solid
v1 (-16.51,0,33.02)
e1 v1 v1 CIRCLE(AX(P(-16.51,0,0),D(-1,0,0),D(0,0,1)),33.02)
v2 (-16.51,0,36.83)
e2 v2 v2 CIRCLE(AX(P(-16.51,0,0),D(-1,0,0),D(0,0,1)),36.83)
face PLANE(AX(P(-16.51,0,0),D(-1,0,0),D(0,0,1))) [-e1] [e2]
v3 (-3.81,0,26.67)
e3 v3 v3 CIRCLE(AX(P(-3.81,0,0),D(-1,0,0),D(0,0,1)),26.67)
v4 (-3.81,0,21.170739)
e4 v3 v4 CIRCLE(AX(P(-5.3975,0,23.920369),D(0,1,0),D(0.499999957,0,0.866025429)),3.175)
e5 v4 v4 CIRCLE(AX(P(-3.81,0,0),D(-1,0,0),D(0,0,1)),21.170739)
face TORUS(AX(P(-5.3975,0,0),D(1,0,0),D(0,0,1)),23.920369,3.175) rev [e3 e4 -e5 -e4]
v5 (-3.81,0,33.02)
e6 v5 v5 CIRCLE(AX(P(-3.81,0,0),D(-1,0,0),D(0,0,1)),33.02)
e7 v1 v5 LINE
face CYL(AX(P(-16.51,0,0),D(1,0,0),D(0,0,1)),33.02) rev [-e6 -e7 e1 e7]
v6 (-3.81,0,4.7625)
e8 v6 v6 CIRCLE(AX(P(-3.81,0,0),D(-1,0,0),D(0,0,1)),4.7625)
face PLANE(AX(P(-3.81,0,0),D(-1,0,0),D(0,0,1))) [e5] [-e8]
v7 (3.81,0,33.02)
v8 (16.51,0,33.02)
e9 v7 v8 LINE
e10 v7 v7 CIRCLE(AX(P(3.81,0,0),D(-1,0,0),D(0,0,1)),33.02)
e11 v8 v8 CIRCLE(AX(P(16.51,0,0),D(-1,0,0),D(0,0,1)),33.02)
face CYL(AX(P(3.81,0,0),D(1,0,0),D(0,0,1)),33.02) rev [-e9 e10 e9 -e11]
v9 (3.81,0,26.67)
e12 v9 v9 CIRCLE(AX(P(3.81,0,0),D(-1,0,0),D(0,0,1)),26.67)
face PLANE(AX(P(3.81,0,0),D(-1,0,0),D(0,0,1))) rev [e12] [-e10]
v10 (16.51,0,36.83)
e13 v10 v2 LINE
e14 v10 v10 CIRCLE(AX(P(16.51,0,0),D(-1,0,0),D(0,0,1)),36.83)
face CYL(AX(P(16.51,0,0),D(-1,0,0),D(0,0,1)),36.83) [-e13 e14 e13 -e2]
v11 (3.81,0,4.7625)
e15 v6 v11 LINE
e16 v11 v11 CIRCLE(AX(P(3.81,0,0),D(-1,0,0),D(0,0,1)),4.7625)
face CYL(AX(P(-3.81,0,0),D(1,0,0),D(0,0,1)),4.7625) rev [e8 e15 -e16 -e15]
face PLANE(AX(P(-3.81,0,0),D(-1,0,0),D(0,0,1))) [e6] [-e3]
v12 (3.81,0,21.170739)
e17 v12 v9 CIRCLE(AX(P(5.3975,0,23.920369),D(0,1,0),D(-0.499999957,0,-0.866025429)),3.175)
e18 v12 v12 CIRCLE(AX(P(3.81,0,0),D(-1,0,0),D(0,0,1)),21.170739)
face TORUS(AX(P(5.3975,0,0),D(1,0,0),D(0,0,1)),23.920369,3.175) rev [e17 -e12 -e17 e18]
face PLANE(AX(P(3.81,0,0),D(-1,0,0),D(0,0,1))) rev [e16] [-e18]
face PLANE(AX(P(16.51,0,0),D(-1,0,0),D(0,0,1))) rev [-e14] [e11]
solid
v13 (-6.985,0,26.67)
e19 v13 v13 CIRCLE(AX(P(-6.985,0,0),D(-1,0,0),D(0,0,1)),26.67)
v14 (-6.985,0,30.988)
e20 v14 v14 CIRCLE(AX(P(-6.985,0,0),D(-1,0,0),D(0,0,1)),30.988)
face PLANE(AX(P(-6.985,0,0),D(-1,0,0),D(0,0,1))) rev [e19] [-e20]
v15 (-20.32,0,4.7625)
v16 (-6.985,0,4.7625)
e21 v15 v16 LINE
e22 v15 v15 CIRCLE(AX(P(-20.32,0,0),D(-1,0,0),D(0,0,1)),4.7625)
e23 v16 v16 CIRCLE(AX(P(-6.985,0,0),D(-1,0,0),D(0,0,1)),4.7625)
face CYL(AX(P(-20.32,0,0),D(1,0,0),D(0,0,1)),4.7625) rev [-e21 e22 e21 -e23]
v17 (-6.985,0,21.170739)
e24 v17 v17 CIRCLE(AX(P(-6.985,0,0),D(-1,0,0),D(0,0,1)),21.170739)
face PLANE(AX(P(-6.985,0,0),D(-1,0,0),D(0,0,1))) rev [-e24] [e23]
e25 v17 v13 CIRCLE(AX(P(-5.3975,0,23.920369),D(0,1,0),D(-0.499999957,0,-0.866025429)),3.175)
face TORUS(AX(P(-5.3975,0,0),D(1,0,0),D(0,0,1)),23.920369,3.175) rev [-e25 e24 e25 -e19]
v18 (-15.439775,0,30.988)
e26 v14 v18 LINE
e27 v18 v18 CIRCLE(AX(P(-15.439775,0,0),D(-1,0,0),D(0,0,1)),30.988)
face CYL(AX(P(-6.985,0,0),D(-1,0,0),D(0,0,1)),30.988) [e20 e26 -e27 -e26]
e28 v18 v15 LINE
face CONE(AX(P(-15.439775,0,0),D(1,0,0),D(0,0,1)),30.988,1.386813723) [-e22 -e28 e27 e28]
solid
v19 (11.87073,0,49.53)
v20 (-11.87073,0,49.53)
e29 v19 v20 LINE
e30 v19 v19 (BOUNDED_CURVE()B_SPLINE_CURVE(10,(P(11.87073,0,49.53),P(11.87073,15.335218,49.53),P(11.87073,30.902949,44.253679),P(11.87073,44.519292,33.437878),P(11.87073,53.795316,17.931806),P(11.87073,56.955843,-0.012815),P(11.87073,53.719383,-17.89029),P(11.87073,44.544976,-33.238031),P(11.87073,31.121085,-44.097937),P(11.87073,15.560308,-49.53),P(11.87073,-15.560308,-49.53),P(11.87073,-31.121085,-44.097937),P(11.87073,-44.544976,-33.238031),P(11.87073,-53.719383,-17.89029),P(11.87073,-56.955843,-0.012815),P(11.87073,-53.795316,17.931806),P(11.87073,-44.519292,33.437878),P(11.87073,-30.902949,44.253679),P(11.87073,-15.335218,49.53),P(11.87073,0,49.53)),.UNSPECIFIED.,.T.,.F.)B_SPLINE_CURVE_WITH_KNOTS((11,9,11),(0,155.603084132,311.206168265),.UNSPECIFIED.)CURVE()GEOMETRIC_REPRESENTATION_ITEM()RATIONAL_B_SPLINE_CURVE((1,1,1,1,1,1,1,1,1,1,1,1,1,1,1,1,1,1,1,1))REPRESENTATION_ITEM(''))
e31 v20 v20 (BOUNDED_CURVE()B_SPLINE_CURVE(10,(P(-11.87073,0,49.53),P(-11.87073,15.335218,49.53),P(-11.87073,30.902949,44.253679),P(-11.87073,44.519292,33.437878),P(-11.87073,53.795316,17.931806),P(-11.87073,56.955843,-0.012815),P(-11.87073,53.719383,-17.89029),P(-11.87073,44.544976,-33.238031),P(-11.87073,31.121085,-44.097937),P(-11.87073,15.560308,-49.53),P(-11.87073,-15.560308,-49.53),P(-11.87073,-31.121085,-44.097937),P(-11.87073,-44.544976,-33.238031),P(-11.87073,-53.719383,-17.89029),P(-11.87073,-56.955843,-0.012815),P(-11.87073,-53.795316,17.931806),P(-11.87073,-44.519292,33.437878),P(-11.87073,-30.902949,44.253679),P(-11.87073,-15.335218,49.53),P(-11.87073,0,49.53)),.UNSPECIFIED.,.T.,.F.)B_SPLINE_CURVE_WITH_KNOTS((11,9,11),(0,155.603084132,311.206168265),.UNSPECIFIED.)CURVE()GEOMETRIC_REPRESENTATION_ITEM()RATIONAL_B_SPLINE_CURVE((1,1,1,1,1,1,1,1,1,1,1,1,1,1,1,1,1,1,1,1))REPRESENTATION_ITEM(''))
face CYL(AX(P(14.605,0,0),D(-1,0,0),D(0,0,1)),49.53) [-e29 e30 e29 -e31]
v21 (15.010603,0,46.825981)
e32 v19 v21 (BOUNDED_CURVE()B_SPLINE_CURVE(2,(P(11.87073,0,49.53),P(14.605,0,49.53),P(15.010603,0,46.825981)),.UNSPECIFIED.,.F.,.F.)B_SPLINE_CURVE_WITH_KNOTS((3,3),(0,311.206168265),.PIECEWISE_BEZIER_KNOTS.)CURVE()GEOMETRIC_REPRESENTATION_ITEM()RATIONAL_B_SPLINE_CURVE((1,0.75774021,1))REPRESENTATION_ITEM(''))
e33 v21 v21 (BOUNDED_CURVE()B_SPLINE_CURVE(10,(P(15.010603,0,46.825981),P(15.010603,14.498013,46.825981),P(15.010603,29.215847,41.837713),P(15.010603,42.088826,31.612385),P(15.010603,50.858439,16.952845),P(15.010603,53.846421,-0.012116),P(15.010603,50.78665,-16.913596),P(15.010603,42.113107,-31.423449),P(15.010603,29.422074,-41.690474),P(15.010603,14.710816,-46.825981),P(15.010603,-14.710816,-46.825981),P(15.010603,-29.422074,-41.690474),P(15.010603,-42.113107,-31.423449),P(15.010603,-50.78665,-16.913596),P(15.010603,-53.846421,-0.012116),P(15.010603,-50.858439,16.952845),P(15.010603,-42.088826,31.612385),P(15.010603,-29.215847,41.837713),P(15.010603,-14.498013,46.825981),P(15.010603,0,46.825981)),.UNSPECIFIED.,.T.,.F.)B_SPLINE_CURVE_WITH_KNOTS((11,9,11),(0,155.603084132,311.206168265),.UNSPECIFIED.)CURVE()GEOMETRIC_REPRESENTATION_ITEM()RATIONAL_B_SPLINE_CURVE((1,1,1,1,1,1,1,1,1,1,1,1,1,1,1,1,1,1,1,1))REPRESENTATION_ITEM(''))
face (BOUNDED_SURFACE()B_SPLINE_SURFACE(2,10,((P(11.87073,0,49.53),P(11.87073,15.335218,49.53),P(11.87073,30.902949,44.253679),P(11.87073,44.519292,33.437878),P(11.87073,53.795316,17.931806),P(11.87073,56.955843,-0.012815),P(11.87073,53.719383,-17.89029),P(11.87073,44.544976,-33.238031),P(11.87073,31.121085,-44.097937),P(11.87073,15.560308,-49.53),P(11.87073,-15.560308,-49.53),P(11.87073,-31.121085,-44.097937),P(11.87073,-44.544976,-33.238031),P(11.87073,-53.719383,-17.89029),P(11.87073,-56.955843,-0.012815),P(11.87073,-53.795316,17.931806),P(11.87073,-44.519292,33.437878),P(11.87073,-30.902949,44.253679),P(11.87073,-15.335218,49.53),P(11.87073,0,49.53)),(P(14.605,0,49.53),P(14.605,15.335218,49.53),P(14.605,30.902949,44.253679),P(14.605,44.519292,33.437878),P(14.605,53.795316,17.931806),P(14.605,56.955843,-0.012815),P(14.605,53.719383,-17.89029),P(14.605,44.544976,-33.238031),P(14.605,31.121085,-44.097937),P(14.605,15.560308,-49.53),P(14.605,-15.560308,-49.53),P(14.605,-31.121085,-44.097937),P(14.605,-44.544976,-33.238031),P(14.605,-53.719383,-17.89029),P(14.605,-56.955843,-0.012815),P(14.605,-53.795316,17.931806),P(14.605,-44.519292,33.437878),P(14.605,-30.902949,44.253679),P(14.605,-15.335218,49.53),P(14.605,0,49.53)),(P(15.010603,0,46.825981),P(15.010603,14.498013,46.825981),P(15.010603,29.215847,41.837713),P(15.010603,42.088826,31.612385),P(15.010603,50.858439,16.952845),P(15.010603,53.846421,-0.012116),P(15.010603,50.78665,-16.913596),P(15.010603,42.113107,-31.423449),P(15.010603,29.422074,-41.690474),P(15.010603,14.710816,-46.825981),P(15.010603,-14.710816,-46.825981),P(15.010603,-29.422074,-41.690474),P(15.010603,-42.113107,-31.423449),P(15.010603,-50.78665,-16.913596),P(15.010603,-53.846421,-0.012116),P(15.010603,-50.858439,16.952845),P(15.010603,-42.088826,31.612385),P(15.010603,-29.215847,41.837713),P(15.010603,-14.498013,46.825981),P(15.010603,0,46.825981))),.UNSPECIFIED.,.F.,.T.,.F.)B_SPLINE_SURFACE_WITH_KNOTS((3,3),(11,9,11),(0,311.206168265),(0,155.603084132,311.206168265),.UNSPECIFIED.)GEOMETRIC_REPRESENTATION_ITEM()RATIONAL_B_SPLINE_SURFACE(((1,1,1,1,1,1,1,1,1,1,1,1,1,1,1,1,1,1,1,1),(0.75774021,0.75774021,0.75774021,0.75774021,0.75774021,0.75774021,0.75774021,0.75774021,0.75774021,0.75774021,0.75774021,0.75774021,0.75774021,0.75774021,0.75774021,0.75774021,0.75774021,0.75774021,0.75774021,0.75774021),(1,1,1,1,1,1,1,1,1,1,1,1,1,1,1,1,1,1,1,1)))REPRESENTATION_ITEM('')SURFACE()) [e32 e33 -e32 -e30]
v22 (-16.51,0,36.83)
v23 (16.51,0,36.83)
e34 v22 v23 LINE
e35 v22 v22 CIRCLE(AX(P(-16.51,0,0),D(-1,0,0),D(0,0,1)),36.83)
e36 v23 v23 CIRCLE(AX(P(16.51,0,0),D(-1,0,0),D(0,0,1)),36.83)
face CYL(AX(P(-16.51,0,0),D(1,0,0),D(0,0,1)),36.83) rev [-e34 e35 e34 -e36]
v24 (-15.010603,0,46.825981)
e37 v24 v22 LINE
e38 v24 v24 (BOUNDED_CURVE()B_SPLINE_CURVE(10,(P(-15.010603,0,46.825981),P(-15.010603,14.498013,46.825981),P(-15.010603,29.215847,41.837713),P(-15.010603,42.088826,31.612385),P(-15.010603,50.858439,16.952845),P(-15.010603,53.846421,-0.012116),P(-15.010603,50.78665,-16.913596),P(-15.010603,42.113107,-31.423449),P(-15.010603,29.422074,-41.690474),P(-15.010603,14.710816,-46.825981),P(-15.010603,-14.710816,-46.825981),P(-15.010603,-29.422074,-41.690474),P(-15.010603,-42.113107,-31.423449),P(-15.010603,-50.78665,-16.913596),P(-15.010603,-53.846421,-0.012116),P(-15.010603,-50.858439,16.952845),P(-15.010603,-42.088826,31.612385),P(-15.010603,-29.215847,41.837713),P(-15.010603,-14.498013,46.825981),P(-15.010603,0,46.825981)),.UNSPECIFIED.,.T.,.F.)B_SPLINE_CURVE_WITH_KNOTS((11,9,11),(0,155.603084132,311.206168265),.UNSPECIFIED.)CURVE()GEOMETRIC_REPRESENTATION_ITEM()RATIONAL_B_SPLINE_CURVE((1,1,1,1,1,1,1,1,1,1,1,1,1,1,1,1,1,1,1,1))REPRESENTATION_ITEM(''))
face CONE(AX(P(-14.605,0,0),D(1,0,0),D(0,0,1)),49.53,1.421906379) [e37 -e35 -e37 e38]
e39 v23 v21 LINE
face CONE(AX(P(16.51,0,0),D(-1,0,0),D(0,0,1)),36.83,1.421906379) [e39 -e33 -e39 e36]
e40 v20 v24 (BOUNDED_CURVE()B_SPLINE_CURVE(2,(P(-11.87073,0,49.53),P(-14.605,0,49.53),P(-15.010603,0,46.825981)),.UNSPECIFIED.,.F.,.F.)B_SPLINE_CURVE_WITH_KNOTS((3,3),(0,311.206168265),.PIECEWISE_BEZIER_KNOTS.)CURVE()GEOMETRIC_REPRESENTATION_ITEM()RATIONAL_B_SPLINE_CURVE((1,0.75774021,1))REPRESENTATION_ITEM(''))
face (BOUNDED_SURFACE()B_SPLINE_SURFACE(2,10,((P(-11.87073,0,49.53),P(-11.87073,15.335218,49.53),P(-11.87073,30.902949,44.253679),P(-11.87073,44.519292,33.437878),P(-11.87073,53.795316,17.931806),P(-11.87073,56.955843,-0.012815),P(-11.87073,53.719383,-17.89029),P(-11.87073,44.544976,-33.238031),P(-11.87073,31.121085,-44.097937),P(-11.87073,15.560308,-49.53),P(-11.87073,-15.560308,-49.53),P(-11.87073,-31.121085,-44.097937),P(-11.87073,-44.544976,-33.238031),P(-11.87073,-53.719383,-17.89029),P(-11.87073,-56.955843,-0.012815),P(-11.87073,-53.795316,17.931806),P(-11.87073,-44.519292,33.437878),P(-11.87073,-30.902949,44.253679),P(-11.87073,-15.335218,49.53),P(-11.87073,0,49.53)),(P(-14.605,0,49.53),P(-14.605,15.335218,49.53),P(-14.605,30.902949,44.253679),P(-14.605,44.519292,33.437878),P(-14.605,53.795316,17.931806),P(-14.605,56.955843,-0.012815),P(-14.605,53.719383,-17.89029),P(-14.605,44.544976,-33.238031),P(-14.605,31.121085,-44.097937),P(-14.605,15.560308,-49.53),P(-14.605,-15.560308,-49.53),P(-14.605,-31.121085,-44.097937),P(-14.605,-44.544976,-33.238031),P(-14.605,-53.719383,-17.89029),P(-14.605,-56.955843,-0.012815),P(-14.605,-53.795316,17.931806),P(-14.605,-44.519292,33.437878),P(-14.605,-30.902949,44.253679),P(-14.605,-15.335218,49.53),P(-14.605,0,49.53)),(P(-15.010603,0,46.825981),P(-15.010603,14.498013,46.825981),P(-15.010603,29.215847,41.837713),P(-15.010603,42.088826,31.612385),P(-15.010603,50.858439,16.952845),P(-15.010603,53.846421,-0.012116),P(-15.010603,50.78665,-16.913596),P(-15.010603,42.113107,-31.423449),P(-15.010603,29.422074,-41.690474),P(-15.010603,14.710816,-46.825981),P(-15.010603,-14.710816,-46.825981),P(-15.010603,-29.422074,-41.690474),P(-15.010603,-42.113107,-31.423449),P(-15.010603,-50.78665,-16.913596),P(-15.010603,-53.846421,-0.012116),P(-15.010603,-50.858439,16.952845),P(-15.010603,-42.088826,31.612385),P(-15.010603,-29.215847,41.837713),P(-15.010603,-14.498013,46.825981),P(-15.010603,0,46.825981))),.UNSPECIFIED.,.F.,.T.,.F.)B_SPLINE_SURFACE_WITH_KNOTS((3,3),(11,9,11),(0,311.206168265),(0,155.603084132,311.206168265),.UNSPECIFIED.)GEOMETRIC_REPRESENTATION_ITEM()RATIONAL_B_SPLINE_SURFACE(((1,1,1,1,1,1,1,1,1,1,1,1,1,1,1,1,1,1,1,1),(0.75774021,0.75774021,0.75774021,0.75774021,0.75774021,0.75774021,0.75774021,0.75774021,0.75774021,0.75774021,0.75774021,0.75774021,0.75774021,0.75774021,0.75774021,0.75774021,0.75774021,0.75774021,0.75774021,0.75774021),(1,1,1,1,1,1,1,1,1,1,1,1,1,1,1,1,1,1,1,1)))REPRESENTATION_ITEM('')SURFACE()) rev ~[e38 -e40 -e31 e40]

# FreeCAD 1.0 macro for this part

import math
import FreeCAD as App
import Part
import Sketcher

V = App.Vector
Q = App.Units.Quantity


def edges_at(feature, points):
    """Names of the edges that pass closest to the given points."""
    edges = feature.Shape.Edges
    near = lambda p: min(range(len(edges)), key=lambda i: edges[i].distToShape(Part.Vertex(*p))[0])
    return sorted({f"Edge{near(p) + 1}" for p in points})

doc = App.newDocument("Part")
params = doc.addObject("Spreadsheet::Sheet", "Params")
for row, (alias, value) in enumerate([
    ("sketch1_width", "1.3 in"),
    ("sketch1_width2", "1.15 in"),
    ("revolution_angle", "360 deg"),
    ("fillet_radius", "0.125 in"),
    ("sketch2_width", "1.3 in"),
    ("sketch2_width2", "0.5 in"),
    ("sketch2_radius", "0.125 in"),
    ("sketch2_height", "0.15 in"),
    ("sketch2_height2", "0.25 in"),
    ("revolution2_angle", "360 deg"),
    ("sketch3_radius", "0.125 in"),
    ("sketch3_height", "0.17 in"),
    ("sketch3_width", "0.525 in"),
    ("revolution3_angle", "360 deg"),
], start=1):
    params.set(f"A{row}", alias)
    params.set(f"B{row}", "=" + value)
    params.setAlias(f"B{row}", alias)

body = doc.addObject("PartDesign::Body", "Body")

# Sketch on XZ plane
sketch1 = doc.addObject("Sketcher::SketchObject", "Sketch")
body.addObject(sketch1)
sketch1.AttachmentSupport = (doc.XZ_Plane, [""])
sketch1.MapMode = "FlatFace"
sketch1.addGeometry(Part.LineSegment(V(15, 50, 0), V(-15, 50, 0)), False)
sketch1.addGeometry(Part.LineSegment(V(-15, 50, 0), V(-17, 37, 0)), False)
sketch1.addGeometry(Part.LineSegment(V(-17, 37, 0), V(17, 37, 0)), False)
sketch1.addGeometry(Part.LineSegment(V(17, 37, 0), V(15, 50, 0)), False)
sketch1.addConstraint(Sketcher.Constraint("Coincident", 0, 2, 1, 1))
sketch1.addConstraint(Sketcher.Constraint("Coincident", 1, 2, 2, 1))
sketch1.addConstraint(Sketcher.Constraint("Coincident", 2, 2, 3, 1))
sketch1.addConstraint(Sketcher.Constraint("Coincident", 3, 2, 0, 1))
sketch1.addConstraint(Sketcher.Constraint("Horizontal", 0))
sketch1.addConstraint(Sketcher.Constraint("Horizontal", 2))
sketch1.addConstraint(Sketcher.Constraint("Equal", 1, 3))
sketch1.addConstraint(Sketcher.Constraint("DistanceX", 2, 1, 2, 2, Q("1.3 in")))
sketch1.addConstraint(Sketcher.Constraint("DistanceX", 0, 2, 0, 1, Q("1.15 in")))
sketch1.addConstraint(Sketcher.Constraint("DistanceY", 1, 2, 0, 2, Q("0.5 in")))
sketch1.addConstraint(Sketcher.Constraint("DistanceY", -1, 1, 0, 2, Q("1.95 in")))
sketch1.addConstraint(Sketcher.Constraint("DistanceX", 1, 2, -1, 1, Q("0.65 in")))
sketch1.setExpression("Constraints[7]", "Params.sketch1_width")
sketch1.setExpression("Constraints[8]", "Params.sketch1_width2")
revolution = doc.addObject("PartDesign::Revolution", "Revolution")
body.addObject(revolution)
revolution.Profile = sketch1
revolution.ReferenceAxis = (sketch1, ["H_Axis"])
revolution.setExpression("Angle", "Params.revolution_angle")
doc.recompute()

fillet = doc.addObject("PartDesign::Fillet", "Fillet")
body.addObject(fillet)
fillet.Base = (revolution, edges_at(revolution, [(-14.605, 0, -49.53), (14.605, 0, -49.53)]))
fillet.setExpression("Radius", "Params.fillet_radius")
body2 = doc.addObject("PartDesign::Body", "Body001")

# Sketch on XZ plane
sketch2 = doc.addObject("Sketcher::SketchObject", "Sketch001")
body2.addObject(sketch2)
sketch2.AttachmentSupport = (doc.getObject("XZ_Plane001"), [""])
sketch2.MapMode = "FlatFace"
sketch2.addGeometry(Part.LineSegment(V(16.5, 36.8, 0), V(-16.5, 36.8, 0)), False)
sketch2.addGeometry(Part.LineSegment(V(-16.5, 36.8, 0), V(-16.5, 33, 0)), False)
sketch2.addGeometry(Part.LineSegment(V(-16.5, 33, 0), V(-3.8, 33, 0)), False)
sketch2.addGeometry(Part.LineSegment(V(-3.8, 33, 0), V(-3.8, 26.7, 0)), False)
sketch2.addGeometry(Part.ArcOfCircle(Part.Circle(V(-5.4, 23.9, 0), V(0, 0, 1), 3.2), math.radians(-60), math.radians(60)), False)
sketch2.addGeometry(Part.LineSegment(V(-3.8, 21.2, 0), V(-3.8, 4.8, 0)), False)
sketch2.addGeometry(Part.LineSegment(V(-3.8, 4.8, 0), V(3.8, 4.8, 0)), False)
sketch2.addGeometry(Part.LineSegment(V(3.8, 4.8, 0), V(3.8, 21.2, 0)), False)
sketch2.addGeometry(Part.ArcOfCircle(Part.Circle(V(5.4, 23.9, 0), V(0, 0, 1), 3.2), math.radians(120), math.radians(240)), False)
sketch2.addGeometry(Part.LineSegment(V(3.8, 26.7, 0), V(3.8, 33, 0)), False)
sketch2.addGeometry(Part.LineSegment(V(3.8, 33, 0), V(16.5, 33, 0)), False)
sketch2.addGeometry(Part.LineSegment(V(16.5, 33, 0), V(16.5, 36.8, 0)), False)
sketch2.addConstraint(Sketcher.Constraint("Coincident", 0, 2, 1, 1))
sketch2.addConstraint(Sketcher.Constraint("Coincident", 1, 2, 2, 1))
sketch2.addConstraint(Sketcher.Constraint("Coincident", 2, 2, 3, 1))
sketch2.addConstraint(Sketcher.Constraint("Coincident", 3, 2, 4, 2))
sketch2.addConstraint(Sketcher.Constraint("Coincident", 4, 1, 5, 1))
sketch2.addConstraint(Sketcher.Constraint("Coincident", 5, 2, 6, 1))
sketch2.addConstraint(Sketcher.Constraint("Coincident", 6, 2, 7, 1))
sketch2.addConstraint(Sketcher.Constraint("Coincident", 7, 2, 8, 2))
sketch2.addConstraint(Sketcher.Constraint("Coincident", 8, 1, 9, 1))
sketch2.addConstraint(Sketcher.Constraint("Coincident", 9, 2, 10, 1))
sketch2.addConstraint(Sketcher.Constraint("Coincident", 10, 2, 11, 1))
sketch2.addConstraint(Sketcher.Constraint("Coincident", 11, 2, 0, 1))
sketch2.addConstraint(Sketcher.Constraint("Horizontal", 0))
sketch2.addConstraint(Sketcher.Constraint("Vertical", 1))
sketch2.addConstraint(Sketcher.Constraint("Horizontal", 2))
sketch2.addConstraint(Sketcher.Constraint("Vertical", 3))
sketch2.addConstraint(Sketcher.Constraint("Vertical", 5))
sketch2.addConstraint(Sketcher.Constraint("Horizontal", 6))
sketch2.addConstraint(Sketcher.Constraint("Vertical", 7))
sketch2.addConstraint(Sketcher.Constraint("Vertical", 9))
sketch2.addConstraint(Sketcher.Constraint("Horizontal", 10))
sketch2.addConstraint(Sketcher.Constraint("Vertical", 11))
sketch2.addConstraint(Sketcher.Constraint("Equal", 4, 8))
sketch2.addConstraint(Sketcher.Constraint("Symmetric", 4, 3, 8, 3, -2))
sketch2.addConstraint(Sketcher.Constraint("Symmetric", 2, 2, 9, 2, -2))
sketch2.addConstraint(Sketcher.Constraint("Horizontal", 4, 1, 7, 2))
sketch2.addConstraint(Sketcher.Constraint("Vertical", 3, 2, 4, 1))
sketch2.addConstraint(Sketcher.Constraint("Equal", 2, 10))
sketch2.addConstraint(Sketcher.Constraint("DistanceX", 0, 2, 0, 1, Q("1.3 in")))
sketch2.addConstraint(Sketcher.Constraint("DistanceX", 2, 1, 2, 2, Q("0.5 in")))
sketch2.addConstraint(Sketcher.Constraint("Radius", 4, Q("0.125 in")))
sketch2.addConstraint(Sketcher.Constraint("DistanceY", 1, 2, 1, 1, Q("0.15 in")))
sketch2.addConstraint(Sketcher.Constraint("DistanceY", 3, 2, 3, 1, Q("0.25 in")))
sketch2.addConstraint(Sketcher.Constraint("DistanceY", -1, 1, 1, 2, Q("1.3 in")))
sketch2.addConstraint(Sketcher.Constraint("DistanceY", -1, 1, 5, 2, Q("0.1875 in")))
sketch2.addConstraint(Sketcher.Constraint("DistanceX", 4, 3, 8, 3, Q("0.425 in")))
sketch2.setExpression("Constraints[28]", "Params.sketch2_width")
sketch2.setExpression("Constraints[29]", "Params.sketch2_width2")
sketch2.setExpression("Constraints[30]", "Params.sketch2_radius")
sketch2.setExpression("Constraints[31]", "Params.sketch2_height")
sketch2.setExpression("Constraints[32]", "Params.sketch2_height2")
revolution2 = doc.addObject("PartDesign::Revolution", "Revolution001")
body2.addObject(revolution2)
revolution2.Profile = sketch2
revolution2.ReferenceAxis = (sketch2, ["H_Axis"])
revolution2.setExpression("Angle", "Params.revolution2_angle")
body3 = doc.addObject("PartDesign::Body", "Body002")

# Sketch on XZ plane
sketch3 = doc.addObject("Sketcher::SketchObject", "Sketch002")
body3.addObject(sketch3)
sketch3.AttachmentSupport = (doc.getObject("XZ_Plane002"), [""])
sketch3.MapMode = "FlatFace"
sketch3.addGeometry(Part.LineSegment(V(-7, 26.7, 0), V(-7, 31, 0)), False)
sketch3.addGeometry(Part.LineSegment(V(-7, 31, 0), V(-15.4, 31, 0)), False)
sketch3.addGeometry(Part.LineSegment(V(-15.4, 31, 0), V(-20.3, 4.8, 0)), False)
sketch3.addGeometry(Part.LineSegment(V(-20.3, 4.8, 0), V(-7, 4.8, 0)), False)
sketch3.addGeometry(Part.LineSegment(V(-7, 4.8, 0), V(-7, 21.2, 0)), False)
sketch3.addGeometry(Part.ArcOfCircle(Part.Circle(V(-5.4, 23.9, 0), V(0, 0, 1), 3.2), math.radians(120), math.radians(240)), False)
sketch3.addConstraint(Sketcher.Constraint("Coincident", 0, 2, 1, 1))
sketch3.addConstraint(Sketcher.Constraint("Coincident", 1, 2, 2, 1))
sketch3.addConstraint(Sketcher.Constraint("Coincident", 2, 2, 3, 1))
sketch3.addConstraint(Sketcher.Constraint("Coincident", 3, 2, 4, 1))
sketch3.addConstraint(Sketcher.Constraint("Coincident", 4, 2, 5, 2))
sketch3.addConstraint(Sketcher.Constraint("Coincident", 5, 1, 0, 1))
sketch3.addConstraint(Sketcher.Constraint("Vertical", 0))
sketch3.addConstraint(Sketcher.Constraint("Horizontal", 1))
sketch3.addConstraint(Sketcher.Constraint("Horizontal", 3))
sketch3.addConstraint(Sketcher.Constraint("Vertical", 4))
sketch3.addConstraint(Sketcher.Constraint("Vertical", 0, 2, 3, 2))
sketch3.addConstraint(Sketcher.Constraint("Radius", 5, Q("0.125 in")))
sketch3.addConstraint(Sketcher.Constraint("DistanceY", 0, 1, 0, 2, Q("0.17 in")))
sketch3.addConstraint(Sketcher.Constraint("DistanceX", 2, 2, -1, 1, Q("0.8 in")))
sketch3.addConstraint(Sketcher.Constraint("DistanceX", 3, 1, 3, 2, Q("0.525 in")))
sketch3.addConstraint(Sketcher.Constraint("DistanceY", -1, 1, 0, 2, Q("1.22 in")))
sketch3.addConstraint(Sketcher.Constraint("DistanceY", -1, 1, 2, 2, Q("0.1875 in")))
sketch3.addConstraint(Sketcher.Constraint("DistanceX", 0, 2, 5, 3, Q("0.0625 in")))
sketch3.addConstraint(Sketcher.Constraint("Distance", 2, Q("26.675709 mm")))
sketch3.setExpression("Constraints[11]", "Params.sketch3_radius")
sketch3.setExpression("Constraints[12]", "Params.sketch3_height")
sketch3.setExpression("Constraints[14]", "Params.sketch3_width")
revolution3 = doc.addObject("PartDesign::Revolution", "Revolution002")
body3.addObject(revolution3)
revolution3.Profile = sketch3
revolution3.ReferenceAxis = (sketch3, ["H_Axis"])
revolution3.setExpression("Angle", "Params.revolution3_angle")

doc.recompute()
